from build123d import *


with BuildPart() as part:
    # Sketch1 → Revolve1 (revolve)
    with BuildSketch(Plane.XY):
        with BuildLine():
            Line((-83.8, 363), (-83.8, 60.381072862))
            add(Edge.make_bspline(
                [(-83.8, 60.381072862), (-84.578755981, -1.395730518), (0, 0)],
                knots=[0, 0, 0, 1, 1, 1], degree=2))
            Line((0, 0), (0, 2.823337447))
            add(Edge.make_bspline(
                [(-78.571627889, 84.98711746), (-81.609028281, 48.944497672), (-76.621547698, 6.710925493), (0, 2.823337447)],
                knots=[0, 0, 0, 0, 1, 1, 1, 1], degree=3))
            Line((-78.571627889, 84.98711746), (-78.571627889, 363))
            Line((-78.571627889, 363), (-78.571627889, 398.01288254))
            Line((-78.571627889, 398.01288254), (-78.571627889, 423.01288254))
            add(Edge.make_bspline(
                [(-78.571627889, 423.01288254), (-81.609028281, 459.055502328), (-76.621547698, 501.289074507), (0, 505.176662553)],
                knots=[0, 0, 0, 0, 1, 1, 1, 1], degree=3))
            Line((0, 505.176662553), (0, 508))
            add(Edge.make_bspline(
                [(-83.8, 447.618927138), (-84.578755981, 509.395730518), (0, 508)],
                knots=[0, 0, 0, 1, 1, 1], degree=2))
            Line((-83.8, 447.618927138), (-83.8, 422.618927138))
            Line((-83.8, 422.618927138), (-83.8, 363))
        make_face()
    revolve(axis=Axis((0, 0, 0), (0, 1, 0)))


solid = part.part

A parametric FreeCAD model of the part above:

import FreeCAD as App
import Part
import Sketcher

doc = App.newDocument("Part")
body = doc.addObject("PartDesign::Body", "Body")

# Sketch on XY plane
sketch1 = body.newObject("Sketcher::SketchObject", "Sketch")
sketch1.AttachmentSupport = (doc.getObject("XY_Plane"), [""])
sketch1.MapMode = "FlatFace"
sketch1.addGeometry([
    Part.BSplineCurve([App.Vector(-83.8, 60.381073, 0), App.Vector(-84.578756, -1.395731, 0), App.Vector(0, 0, 0)], [3, 3], [0, 1], False, 2, [1, 1, 1], False),  # 0
    Part.LineSegment(App.Vector(0, 0, 0), App.Vector(0, 2.823337, 0)),  # 1
    Part.BSplineCurve([App.Vector(-78.571628, 84.987117, 0), App.Vector(-81.609028, 48.944498, 0), App.Vector(-76.621548, 6.710925, 0), App.Vector(0, 2.823337, 0)], [4, 4], [0, 1], False, 3, [1, 1, 1, 1], False),  # 2
    Part.LineSegment(App.Vector(-78.571628, 84.987117, 0), App.Vector(-78.571628, 423.012883, 0)),  # 3
    Part.BSplineCurve([App.Vector(-78.571628, 423.012883, 0), App.Vector(-81.609028, 459.055502, 0), App.Vector(-76.621548, 501.289075, 0), App.Vector(0, 505.176663, 0)], [4, 4], [0, 1], False, 3, [1, 1, 1, 1], False),  # 4
    Part.LineSegment(App.Vector(0, 505.176663, 0), App.Vector(0, 508, 0)),  # 5
    Part.BSplineCurve([App.Vector(-83.8, 447.618927, 0), App.Vector(-84.578756, 509.395731, 0), App.Vector(0, 508, 0)], [3, 3], [0, 1], False, 2, [1, 1, 1], False),  # 6
    Part.LineSegment(App.Vector(-83.8, 447.618927, 0), App.Vector(-83.8, 60.381073, 0)),  # 7
], False)
sketch1.addConstraint([
    Sketcher.Constraint("Block", 0),
    Sketcher.Constraint("Block", 2),
    Sketcher.Constraint("Block", 4),
    Sketcher.Constraint("Block", 6),
    Sketcher.Constraint("Coincident", 0, 2, 1, 1),
    Sketcher.Constraint("Coincident", 1, 2, 2, 2),
    Sketcher.Constraint("Coincident", 2, 1, 3, 1),
    Sketcher.Constraint("Coincident", 3, 2, 4, 1),
    Sketcher.Constraint("Coincident", 4, 2, 5, 1),
    Sketcher.Constraint("Coincident", 5, 2, 6, 2),
    Sketcher.Constraint("Coincident", 6, 1, 7, 1),
    Sketcher.Constraint("Coincident", 7, 2, 0, 1),
])
revolution = body.newObject("PartDesign::Revolution", "Revolution")
revolution.Profile = sketch1
revolution.ReferenceAxis = (sketch1, ["V_Axis"])
revolution.Angle = 360

doc.recompute()
